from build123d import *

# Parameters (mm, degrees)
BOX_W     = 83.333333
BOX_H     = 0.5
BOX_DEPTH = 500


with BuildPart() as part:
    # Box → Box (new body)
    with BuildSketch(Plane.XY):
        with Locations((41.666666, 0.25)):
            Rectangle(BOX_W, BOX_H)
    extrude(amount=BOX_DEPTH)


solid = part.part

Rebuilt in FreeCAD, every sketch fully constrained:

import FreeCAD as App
import Part
import Sketcher


def add_polygon(sketch, points):
    """Adds a closed chain of lines whose ends are joined by coincident constraints."""
    first, n = sketch.GeometryCount, len(points)
    for a, b in zip(points, points[1:] + points[:1]):
        sketch.addGeometry(Part.LineSegment(App.Vector(*a, 0), App.Vector(*b, 0)), False)
    for i in range(n):
        sketch.addConstraint(Sketcher.Constraint("Coincident", first + i, 2, first + (i + 1) % n, 1))

doc = App.newDocument("Part")
params = doc.addObject("Spreadsheet::Sheet", "Params")
for row, (alias, value) in enumerate([
    ("sketch1_height", "0.5 mm"),
    ("pad1_length", "500 mm"),
], start=1):
    params.set(f"A{row}", alias)
    params.set(f"B{row}", "=" + value)
    params.setAlias(f"B{row}", alias)

body = doc.addObject("PartDesign::Body", "Body")

# Sketch on XY plane
sketch1 = body.newObject("Sketcher::SketchObject", "Sketch")
sketch1.AttachmentSupport = (doc.getObject("XY_Plane"), [""])
sketch1.MapMode = "FlatFace"
add_polygon(sketch1, [(0, 0.5), (0, 0), (83.3, 0), (83.3, 0.5)])  # lines 0-3
sketch1.addConstraint(Sketcher.Constraint("Vertical", 0))
sketch1.addConstraint(Sketcher.Constraint("Horizontal", 1))
sketch1.addConstraint(Sketcher.Constraint("Vertical", 2))
sketch1.addConstraint(Sketcher.Constraint("Horizontal", 3))
sketch1.addConstraint(Sketcher.Constraint("Coincident", 0, 2, -1, 1))
sketch1.addConstraint(Sketcher.Constraint("DistanceY", 0, 2, 0, 1, 0.5))
sketch1.addConstraint(Sketcher.Constraint("DistanceX", 1, 1, 1, 2, 83.333333))
sketch1.setExpression("Constraints[9]", "Params.sketch1_height")
pad1 = body.newObject("PartDesign::Pad", "Pad")
pad1.Profile = sketch1
pad1.setExpression("Length", "Params.pad1_length")

doc.recompute()
